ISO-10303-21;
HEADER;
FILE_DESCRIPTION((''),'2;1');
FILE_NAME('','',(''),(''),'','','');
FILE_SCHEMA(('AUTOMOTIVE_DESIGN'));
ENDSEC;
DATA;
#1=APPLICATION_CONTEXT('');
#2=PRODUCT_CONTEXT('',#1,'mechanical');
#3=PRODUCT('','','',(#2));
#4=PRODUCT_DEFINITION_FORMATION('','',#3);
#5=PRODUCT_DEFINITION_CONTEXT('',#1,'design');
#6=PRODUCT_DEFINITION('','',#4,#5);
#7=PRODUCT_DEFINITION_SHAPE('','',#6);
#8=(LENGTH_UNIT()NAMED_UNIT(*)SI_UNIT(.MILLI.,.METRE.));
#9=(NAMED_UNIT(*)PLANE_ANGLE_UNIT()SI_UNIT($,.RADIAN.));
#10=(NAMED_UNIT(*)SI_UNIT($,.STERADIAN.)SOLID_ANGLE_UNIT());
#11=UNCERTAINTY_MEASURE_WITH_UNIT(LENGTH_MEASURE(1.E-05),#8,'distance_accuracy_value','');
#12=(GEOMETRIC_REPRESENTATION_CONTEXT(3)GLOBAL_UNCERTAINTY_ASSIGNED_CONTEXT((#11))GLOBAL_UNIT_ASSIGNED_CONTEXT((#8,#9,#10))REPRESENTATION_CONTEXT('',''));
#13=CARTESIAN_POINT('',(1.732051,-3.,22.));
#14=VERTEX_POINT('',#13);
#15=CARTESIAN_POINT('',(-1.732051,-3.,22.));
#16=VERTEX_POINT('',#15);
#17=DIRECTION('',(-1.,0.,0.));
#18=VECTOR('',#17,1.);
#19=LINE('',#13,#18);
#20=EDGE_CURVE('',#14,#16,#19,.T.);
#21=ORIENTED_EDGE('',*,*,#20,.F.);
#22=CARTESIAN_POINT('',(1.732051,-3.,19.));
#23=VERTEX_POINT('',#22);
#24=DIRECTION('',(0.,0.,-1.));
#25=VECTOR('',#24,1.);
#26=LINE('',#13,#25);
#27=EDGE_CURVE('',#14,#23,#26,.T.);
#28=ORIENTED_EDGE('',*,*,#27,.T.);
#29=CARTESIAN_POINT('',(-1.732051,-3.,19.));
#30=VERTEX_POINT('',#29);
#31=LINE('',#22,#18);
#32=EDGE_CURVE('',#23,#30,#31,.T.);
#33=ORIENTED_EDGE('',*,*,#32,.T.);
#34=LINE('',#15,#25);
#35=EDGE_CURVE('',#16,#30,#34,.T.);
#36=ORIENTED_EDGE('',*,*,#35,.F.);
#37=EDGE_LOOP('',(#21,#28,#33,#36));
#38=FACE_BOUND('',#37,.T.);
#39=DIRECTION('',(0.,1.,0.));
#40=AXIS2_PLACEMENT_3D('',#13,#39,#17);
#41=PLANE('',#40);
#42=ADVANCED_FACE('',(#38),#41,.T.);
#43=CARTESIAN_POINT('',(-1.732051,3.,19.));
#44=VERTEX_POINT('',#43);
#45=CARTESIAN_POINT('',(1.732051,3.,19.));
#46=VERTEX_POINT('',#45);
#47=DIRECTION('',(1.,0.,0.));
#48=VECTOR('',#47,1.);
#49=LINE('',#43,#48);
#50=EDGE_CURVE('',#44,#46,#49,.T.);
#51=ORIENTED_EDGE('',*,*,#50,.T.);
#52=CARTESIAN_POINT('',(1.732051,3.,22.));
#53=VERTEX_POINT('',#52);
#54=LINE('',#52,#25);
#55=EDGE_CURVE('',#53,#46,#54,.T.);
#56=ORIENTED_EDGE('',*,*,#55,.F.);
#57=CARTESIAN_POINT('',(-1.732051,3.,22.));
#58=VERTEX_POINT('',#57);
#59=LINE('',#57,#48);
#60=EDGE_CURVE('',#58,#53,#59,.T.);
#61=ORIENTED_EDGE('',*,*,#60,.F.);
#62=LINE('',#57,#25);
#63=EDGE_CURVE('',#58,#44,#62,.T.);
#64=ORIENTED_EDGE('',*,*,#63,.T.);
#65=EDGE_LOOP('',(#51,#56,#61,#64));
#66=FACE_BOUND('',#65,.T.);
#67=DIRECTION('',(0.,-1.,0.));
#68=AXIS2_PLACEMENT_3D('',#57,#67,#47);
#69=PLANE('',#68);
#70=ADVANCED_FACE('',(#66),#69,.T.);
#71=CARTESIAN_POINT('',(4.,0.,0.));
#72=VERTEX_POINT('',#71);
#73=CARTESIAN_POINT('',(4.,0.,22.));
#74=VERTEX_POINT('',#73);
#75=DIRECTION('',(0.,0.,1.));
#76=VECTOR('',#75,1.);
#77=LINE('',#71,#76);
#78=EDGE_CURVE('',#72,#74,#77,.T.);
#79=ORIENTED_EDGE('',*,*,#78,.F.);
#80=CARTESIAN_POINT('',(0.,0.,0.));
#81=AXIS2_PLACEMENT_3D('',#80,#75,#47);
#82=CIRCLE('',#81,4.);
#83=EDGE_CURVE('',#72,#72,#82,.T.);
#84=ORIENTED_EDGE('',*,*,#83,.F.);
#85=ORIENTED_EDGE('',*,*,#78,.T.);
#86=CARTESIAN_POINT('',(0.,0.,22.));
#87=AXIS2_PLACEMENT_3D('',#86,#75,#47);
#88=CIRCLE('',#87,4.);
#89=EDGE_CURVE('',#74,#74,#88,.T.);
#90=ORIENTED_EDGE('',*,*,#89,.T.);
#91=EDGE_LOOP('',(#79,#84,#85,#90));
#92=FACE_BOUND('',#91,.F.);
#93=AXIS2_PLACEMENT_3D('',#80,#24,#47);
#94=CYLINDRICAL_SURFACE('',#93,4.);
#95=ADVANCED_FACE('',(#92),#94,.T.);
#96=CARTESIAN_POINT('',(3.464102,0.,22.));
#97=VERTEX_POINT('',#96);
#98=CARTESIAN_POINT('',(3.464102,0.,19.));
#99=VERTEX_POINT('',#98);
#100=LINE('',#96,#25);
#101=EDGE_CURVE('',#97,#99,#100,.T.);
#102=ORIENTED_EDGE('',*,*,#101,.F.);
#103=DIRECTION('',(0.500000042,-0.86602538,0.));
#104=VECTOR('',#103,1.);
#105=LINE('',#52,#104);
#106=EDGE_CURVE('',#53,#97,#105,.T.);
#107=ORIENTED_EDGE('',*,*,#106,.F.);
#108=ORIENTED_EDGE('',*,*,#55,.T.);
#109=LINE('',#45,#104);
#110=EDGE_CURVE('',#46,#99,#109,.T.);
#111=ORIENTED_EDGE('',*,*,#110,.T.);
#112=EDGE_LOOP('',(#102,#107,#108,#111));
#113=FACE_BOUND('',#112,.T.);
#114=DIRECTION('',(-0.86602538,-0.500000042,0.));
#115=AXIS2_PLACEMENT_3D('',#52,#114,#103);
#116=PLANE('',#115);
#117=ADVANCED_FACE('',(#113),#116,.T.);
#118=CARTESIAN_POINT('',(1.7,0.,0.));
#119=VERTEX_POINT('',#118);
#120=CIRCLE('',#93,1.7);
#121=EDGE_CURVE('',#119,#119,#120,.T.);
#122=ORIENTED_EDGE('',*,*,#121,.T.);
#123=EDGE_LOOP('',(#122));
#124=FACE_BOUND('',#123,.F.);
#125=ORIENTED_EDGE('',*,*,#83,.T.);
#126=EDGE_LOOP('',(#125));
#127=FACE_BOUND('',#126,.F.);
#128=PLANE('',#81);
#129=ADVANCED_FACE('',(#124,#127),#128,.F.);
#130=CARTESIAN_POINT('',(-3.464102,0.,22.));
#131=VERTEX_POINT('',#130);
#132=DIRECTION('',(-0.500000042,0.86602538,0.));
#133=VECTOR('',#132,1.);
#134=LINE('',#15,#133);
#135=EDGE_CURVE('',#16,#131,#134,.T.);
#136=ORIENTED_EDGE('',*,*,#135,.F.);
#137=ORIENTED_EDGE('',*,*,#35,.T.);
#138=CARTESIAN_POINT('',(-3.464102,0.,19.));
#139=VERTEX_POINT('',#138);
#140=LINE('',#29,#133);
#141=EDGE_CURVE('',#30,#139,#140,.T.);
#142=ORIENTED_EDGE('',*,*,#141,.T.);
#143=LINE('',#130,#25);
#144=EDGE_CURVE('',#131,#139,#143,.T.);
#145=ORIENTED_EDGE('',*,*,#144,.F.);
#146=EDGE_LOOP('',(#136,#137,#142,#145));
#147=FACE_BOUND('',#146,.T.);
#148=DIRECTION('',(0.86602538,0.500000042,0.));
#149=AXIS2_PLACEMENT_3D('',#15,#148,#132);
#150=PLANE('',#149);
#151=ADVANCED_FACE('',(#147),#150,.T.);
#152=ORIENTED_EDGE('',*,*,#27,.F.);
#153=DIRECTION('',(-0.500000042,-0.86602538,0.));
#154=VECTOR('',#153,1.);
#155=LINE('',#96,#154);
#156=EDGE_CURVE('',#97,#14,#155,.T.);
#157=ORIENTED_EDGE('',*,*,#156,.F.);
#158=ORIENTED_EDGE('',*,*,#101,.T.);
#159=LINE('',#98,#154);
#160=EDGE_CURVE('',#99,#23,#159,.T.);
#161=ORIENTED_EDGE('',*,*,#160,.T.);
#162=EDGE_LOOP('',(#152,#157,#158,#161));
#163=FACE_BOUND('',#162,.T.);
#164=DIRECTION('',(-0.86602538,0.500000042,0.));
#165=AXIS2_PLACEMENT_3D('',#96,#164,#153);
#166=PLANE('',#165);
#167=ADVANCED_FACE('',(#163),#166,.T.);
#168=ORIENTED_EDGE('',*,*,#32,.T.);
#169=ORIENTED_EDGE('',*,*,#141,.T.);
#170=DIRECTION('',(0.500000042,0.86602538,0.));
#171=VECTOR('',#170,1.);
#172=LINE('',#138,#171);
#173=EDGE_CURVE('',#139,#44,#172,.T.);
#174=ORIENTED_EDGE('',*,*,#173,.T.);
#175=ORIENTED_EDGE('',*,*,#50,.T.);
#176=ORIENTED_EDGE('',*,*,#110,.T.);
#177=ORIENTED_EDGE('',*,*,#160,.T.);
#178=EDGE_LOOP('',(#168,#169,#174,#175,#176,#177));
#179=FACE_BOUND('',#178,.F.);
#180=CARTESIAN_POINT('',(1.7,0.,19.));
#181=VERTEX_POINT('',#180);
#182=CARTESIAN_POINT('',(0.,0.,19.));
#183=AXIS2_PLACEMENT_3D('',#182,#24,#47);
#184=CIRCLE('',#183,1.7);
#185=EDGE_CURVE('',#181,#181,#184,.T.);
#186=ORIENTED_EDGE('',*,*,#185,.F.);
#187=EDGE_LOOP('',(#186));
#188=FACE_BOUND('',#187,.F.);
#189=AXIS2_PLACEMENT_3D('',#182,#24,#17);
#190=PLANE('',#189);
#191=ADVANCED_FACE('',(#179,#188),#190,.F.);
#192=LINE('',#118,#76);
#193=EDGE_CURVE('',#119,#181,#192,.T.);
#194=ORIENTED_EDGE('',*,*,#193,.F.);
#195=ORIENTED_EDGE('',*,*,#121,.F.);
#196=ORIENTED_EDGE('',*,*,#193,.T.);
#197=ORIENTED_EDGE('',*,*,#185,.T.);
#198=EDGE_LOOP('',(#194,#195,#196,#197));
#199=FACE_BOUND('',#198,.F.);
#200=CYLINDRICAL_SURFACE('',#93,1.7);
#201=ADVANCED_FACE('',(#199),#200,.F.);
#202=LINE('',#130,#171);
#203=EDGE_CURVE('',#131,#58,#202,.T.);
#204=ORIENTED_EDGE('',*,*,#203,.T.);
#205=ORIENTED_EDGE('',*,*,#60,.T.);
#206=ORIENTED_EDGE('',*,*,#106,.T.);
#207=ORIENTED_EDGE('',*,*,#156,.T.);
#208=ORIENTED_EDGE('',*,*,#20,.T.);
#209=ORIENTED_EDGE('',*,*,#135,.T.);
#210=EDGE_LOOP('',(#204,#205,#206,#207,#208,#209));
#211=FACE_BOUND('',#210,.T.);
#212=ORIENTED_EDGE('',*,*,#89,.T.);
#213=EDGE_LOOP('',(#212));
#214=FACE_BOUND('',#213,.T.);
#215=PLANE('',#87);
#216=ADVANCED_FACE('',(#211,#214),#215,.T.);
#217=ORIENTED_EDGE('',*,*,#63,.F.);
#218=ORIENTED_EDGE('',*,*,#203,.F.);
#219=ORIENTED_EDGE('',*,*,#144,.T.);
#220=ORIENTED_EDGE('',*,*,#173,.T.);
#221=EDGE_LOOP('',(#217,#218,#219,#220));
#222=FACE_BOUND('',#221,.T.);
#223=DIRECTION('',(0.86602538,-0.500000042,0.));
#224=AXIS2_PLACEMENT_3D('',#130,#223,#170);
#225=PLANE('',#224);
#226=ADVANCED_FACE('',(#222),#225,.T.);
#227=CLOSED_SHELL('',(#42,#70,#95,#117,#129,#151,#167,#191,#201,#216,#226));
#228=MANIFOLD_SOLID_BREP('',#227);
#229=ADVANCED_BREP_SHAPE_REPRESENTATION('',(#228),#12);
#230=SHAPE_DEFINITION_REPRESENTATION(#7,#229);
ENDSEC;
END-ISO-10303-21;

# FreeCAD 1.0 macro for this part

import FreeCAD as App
import Part
import Sketcher
Q = App.Units.Quantity

doc = App.newDocument("Part")
body = doc.addObject("PartDesign::Body", "Body")

sketch1 = body.newObject("Sketcher::SketchObject", "Sketch")
sketch1.AttachmentSupport = (doc.getObject("XY_Plane"), [""])
sketch1.MapMode = "FlatFace"
sketch1.addGeometry(Part.Circle(App.Vector(0, 0, 0), App.Vector(0, 0, 1), 4), False)
sketch1.addConstraint([
    Sketcher.Constraint("Coincident", 0, 3, -1, 1),
    Sketcher.Constraint("Diameter", 0, 8.0),
])
pad1 = body.newObject("PartDesign::Pad", "Pad")
pad1.Profile = sketch1
pad1.Length = 22

sketch2 = body.newObject("Sketcher::SketchObject", "Sketch001")
sketch2.AttachmentSupport = (doc.getObject("XY_Plane"), [""])
sketch2.MapMode = "FlatFace"
sketch2.AttachmentOffset = App.Placement(App.Vector(0, 0, 22), App.Rotation())
sketch2.addGeometry([
    Part.LineSegment(App.Vector(1.7, 3, 0), App.Vector(-1.7, 3, 0)),
    Part.LineSegment(App.Vector(-1.7, 3, 0), App.Vector(-3.5, 0, 0)),
    Part.LineSegment(App.Vector(-3.5, 0, 0), App.Vector(-1.7, -3, 0)),
    Part.LineSegment(App.Vector(-1.7, -3, 0), App.Vector(1.7, -3, 0)),
    Part.LineSegment(App.Vector(1.7, -3, 0), App.Vector(3.5, 0, 0)),
    Part.LineSegment(App.Vector(3.5, 0, 0), App.Vector(1.7, 3, 0)),
], False)
sketch2.addConstraint([
    Sketcher.Constraint("Coincident", 0, 2, 1, 1),
    Sketcher.Constraint("Coincident", 1, 2, 2, 1),
    Sketcher.Constraint("Coincident", 2, 2, 3, 1),
    Sketcher.Constraint("Coincident", 3, 2, 4, 1),
    Sketcher.Constraint("Coincident", 4, 2, 5, 1),
    Sketcher.Constraint("Coincident", 5, 2, 0, 1),
    Sketcher.Constraint("Horizontal", 0),
    Sketcher.Constraint("Horizontal", 3),
    Sketcher.Constraint("Symmetric", 0, 2, 3, 2, -1, 1),
    Sketcher.Constraint("Symmetric", 1, 2, 4, 2, -1, 1),
    Sketcher.Constraint("PointOnObject", 1, 2, -1),
    Sketcher.Constraint("Parallel", 2, 5),
    Sketcher.Constraint("Vertical", 0, 2, 2, 2),
    Sketcher.Constraint("Angle", 1, Q("-120.000003 deg")),
    Sketcher.Constraint("DistanceY", -1, 1, 0, 2, 3.0),
    Sketcher.Constraint("DistanceX", 0, 2, 0, 1, 3.464102),
])
pocket1 = body.newObject("PartDesign::Pocket", "Pocket")
pocket1.Profile = sketch2
pocket1.Length = 3

sketch3 = body.newObject("Sketcher::SketchObject", "Sketch002")
sketch3.AttachmentSupport = (doc.getObject("XY_Plane"), [""])
sketch3.MapMode = "FlatFace"
sketch3.addGeometry(Part.Circle(App.Vector(0, 0, 0), App.Vector(0, 0, 1), 1.7), False)
sketch3.addConstraint([
    Sketcher.Constraint("Coincident", 0, 3, -1, 1),
    Sketcher.Constraint("Diameter", 0, 3.4),
])
pocket2 = body.newObject("PartDesign::Pocket", "Pocket001")
pocket2.Profile = sketch3
pocket2.Length = 30
pocket2.Reversed = True

doc.recompute()
